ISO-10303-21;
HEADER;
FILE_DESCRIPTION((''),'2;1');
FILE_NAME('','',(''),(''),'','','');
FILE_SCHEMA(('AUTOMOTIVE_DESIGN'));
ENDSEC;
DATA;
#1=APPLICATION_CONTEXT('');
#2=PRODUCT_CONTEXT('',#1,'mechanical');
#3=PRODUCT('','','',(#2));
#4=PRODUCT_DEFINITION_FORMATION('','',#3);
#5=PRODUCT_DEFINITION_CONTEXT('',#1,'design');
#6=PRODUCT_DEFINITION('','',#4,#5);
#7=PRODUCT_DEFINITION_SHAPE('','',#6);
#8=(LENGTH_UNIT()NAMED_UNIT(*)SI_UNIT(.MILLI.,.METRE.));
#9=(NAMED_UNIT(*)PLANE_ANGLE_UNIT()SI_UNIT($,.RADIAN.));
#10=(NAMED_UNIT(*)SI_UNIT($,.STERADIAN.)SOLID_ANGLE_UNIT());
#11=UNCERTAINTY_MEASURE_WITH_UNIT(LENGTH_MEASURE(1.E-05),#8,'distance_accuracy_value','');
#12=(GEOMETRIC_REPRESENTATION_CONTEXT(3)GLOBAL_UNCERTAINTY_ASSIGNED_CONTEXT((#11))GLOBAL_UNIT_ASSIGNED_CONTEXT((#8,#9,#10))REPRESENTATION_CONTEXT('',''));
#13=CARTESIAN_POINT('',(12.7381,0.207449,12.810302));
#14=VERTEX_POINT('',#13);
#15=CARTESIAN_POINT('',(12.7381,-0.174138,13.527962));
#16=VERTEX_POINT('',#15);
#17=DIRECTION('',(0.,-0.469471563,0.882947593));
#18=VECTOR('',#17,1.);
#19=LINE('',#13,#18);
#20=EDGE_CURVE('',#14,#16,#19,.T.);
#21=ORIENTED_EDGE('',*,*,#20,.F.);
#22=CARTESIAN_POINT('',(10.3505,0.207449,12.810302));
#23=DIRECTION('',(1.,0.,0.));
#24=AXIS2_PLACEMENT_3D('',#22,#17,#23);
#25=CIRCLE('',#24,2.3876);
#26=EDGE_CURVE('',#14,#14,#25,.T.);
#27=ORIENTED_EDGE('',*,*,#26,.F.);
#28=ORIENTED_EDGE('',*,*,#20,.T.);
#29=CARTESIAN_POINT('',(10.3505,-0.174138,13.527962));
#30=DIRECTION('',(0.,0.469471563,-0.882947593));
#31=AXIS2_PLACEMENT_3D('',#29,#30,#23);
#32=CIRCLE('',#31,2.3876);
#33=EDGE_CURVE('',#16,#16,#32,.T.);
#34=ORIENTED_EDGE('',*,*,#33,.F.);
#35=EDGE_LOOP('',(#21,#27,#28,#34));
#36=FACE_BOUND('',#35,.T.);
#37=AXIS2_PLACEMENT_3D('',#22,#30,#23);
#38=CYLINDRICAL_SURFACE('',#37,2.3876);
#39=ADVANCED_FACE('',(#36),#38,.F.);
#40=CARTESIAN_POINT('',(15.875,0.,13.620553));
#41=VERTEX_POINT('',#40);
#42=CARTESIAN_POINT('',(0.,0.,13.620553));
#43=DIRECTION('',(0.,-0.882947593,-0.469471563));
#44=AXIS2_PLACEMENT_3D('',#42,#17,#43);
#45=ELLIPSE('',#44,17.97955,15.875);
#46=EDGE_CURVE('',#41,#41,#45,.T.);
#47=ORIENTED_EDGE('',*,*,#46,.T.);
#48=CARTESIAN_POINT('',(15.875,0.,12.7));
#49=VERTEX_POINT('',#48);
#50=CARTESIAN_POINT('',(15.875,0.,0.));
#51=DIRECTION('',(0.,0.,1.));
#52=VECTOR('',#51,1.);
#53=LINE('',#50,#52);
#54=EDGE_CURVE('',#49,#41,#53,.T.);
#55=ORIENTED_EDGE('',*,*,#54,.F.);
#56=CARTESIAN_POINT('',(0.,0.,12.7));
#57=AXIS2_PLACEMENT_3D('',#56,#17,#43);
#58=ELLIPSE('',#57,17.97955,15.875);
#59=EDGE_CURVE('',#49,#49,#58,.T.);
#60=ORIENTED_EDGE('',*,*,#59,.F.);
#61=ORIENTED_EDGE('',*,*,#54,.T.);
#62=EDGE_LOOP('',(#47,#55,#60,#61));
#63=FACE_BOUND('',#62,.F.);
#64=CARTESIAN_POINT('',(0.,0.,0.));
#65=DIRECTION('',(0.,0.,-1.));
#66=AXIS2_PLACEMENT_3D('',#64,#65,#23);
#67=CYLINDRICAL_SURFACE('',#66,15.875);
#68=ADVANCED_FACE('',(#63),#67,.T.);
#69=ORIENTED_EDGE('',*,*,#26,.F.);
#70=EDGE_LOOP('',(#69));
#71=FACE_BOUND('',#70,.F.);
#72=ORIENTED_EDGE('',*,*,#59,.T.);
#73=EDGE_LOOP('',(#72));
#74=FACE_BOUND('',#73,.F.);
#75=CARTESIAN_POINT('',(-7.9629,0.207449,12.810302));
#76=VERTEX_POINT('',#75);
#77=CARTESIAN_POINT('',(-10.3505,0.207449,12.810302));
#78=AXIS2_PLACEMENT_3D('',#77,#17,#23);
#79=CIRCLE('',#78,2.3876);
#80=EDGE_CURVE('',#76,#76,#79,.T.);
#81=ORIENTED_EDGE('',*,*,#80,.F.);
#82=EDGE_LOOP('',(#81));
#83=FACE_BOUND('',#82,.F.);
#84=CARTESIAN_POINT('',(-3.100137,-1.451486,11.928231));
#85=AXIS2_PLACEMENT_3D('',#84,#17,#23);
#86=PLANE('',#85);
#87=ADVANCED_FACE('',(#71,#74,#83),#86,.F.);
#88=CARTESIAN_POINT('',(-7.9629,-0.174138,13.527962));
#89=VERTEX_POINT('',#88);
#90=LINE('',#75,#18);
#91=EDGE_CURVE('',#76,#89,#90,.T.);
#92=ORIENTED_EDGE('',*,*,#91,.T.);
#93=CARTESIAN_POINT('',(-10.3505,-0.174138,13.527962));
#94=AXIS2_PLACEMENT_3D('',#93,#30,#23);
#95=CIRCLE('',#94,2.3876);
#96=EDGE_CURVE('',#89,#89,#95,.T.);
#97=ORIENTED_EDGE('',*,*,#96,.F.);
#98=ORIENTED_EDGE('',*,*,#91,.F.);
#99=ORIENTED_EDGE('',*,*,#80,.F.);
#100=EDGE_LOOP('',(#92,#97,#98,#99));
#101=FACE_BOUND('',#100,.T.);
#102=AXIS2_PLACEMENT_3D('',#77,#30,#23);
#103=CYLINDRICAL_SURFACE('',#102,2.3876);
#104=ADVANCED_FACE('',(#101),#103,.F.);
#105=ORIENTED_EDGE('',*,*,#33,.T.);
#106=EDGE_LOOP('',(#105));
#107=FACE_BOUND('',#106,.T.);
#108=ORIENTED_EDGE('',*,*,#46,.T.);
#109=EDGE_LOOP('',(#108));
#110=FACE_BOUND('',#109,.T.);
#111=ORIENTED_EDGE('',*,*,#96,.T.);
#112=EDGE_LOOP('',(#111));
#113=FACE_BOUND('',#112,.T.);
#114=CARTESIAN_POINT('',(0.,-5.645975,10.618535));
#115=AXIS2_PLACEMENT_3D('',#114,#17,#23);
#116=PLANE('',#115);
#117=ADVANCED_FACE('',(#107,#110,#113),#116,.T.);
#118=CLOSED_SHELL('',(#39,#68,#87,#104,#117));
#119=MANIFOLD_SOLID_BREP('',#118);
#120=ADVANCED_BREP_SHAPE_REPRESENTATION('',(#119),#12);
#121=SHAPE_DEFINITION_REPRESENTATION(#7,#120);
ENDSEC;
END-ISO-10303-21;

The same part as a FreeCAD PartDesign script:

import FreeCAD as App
import Part
import Sketcher
Q = App.Units.Quantity

doc = App.newDocument("Part")
body = doc.addObject("PartDesign::Body", "Body")

# Sketch on XY plane
sketch1 = body.newObject("Sketcher::SketchObject", "Sketch")
sketch1.AttachmentSupport = (doc.getObject("XY_Plane"), [""])
sketch1.MapMode = "FlatFace"
sketch1.addGeometry(Part.Circle(App.Vector(0, 0, 0), App.Vector(0, 0, 1), 16), False)
sketch1.addConstraint(Sketcher.Constraint("Coincident", 0, 3, -1, 1))
sketch1.addConstraint(Sketcher.Constraint("Diameter", 0, Q("1.25 in")))
pad1 = body.newObject("PartDesign::Pad", "Pad")
pad1.Profile = sketch1
pad1.Length = Q("1 in")

# Sketch on an angled plane
sketch2 = body.newObject("Sketcher::SketchObject", "Sketch001")
sketch2.Placement = App.Placement(App.Vector(0, -5.645975, 10.618535), App.Rotation(App.Vector(1, 0, 0), App.Vector(0, 0.882947593, 0.469471563), App.Vector(0, -0.469471563, 0.882947593), "ZXY"))
sketch2.addGeometry(Part.Circle(App.Vector(0, 0, 0), App.Vector(0, 0, 1), 28), False)
sketch2.addConstraint(Sketcher.Constraint("Coincident", 0, 3, -1, 1))
sketch2.addConstraint(Sketcher.Constraint("Diameter", 0, Q("56.014636 mm")))
pocket1 = body.newObject("PartDesign::Pocket", "Pocket")
pocket1.Profile = sketch2
pocket1.Length = Q("1 in")
pocket1.Reversed = True

# Sketch on an angled plane
sketch3 = body.newObject("Sketcher::SketchObject", "Sketch002")
sketch3.Placement = App.Placement(App.Vector(0, -5.264389, 9.900875), App.Rotation(App.Vector(1, 0, 0), App.Vector(0, 0.882947593, 0.469471563), App.Vector(0, -0.469471563, 0.882947593), "ZXY"))
sketch3.addGeometry(Part.Circle(App.Vector(-3, 4, 0), App.Vector(0, 0, 1), 27), False)
sketch3.addConstraint(Sketcher.Constraint("Diameter", 0, Q("53.442471 mm")))
sketch3.addConstraint(Sketcher.Constraint("DistanceY", -1, 1, 0, 3, Q("4.318379 mm")))
sketch3.addConstraint(Sketcher.Constraint("DistanceX", 0, 3, -1, 1, Q("3.100137 mm")))
pocket2 = body.newObject("PartDesign::Pocket", "Pocket001")
pocket2.Profile = sketch3
pocket2.Length = Q("1 in")

# Sketch on an angled plane
sketch4 = body.newObject("Sketcher::SketchObject", "Sketch003")
sketch4.Placement = App.Placement(App.Vector(0, -5.264389, 9.900875), App.Rotation(App.Vector(1, 0, 0), App.Vector(0, 0.882947593, 0.469471563), App.Vector(0, -0.469471563, 0.882947593), "ZXY"))
sketch4.addGeometry(Part.Circle(App.Vector(-10.4, 6.2, 0), App.Vector(0, 0, 1), 2.4), False)
sketch4.addGeometry(Part.Circle(App.Vector(10.4, 6.2, 0), App.Vector(0, 0, 1), 2.4), False)
sketch4.addConstraint(Sketcher.Constraint("Equal", 0, 1))
sketch4.addConstraint(Sketcher.Constraint("Symmetric", 0, 3, 1, 3, -2))
sketch4.addConstraint(Sketcher.Constraint("Diameter", 0, Q("0.188 in")))
sketch4.addConstraint(Sketcher.Constraint("DistanceX", 0, 3, 1, 3, Q("0.815 in")))
sketch4.addConstraint(Sketcher.Constraint("DistanceY", -1, 1, 0, 3, Q("6.197239 mm")))
pocket3 = body.newObject("PartDesign::Pocket", "Pocket002")
pocket3.Profile = sketch4
pocket3.Length = Q("1 in")
pocket3.Reversed = True

doc.recompute()
